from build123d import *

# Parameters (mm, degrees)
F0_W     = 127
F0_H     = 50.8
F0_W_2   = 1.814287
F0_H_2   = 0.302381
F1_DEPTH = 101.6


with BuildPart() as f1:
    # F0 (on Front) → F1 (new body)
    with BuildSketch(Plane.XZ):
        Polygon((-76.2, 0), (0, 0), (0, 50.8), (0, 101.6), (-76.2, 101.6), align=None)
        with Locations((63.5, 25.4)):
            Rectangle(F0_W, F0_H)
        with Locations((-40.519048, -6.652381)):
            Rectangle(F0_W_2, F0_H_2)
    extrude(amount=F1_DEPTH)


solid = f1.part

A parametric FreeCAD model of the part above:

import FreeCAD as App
import Part
import Sketcher
Q = App.Units.Quantity

doc = App.newDocument("Part")
body = doc.addObject("PartDesign::Body", "Body")
body.AllowCompound = True

sketch1 = body.newObject("Sketcher::SketchObject", "Sketch")
sketch1.AttachmentSupport = (doc.getObject("XZ_Plane"), [""])
sketch1.MapMode = "FlatFace"
sketch1.addGeometry([
    Part.LineSegment(App.Vector(-76.2, 0, 0), App.Vector(127, 0, 0)),
    Part.LineSegment(App.Vector(127, 0, 0), App.Vector(127, 50.8, 0)),
    Part.LineSegment(App.Vector(127, 50.8, 0), App.Vector(0, 50.8, 0)),
    Part.LineSegment(App.Vector(0, 50.8, 0), App.Vector(0, 101.6, 0)),
    Part.LineSegment(App.Vector(0, 101.6, 0), App.Vector(-76.2, 101.6, 0)),
    Part.LineSegment(App.Vector(-76.2, 101.6, 0), App.Vector(-76.2, 0, 0)),
    Part.LineSegment(App.Vector(-41.43, -6.5, 0), App.Vector(-41.43, -6.8, 0)),
    Part.LineSegment(App.Vector(-41.43, -6.8, 0), App.Vector(-39.61, -6.8, 0)),
    Part.LineSegment(App.Vector(-39.61, -6.8, 0), App.Vector(-39.61, -6.5, 0)),
    Part.LineSegment(App.Vector(-39.61, -6.5, 0), App.Vector(-41.43, -6.5, 0)),
], False)
sketch1.addConstraint([
    Sketcher.Constraint("Coincident", 0, 2, 1, 1),
    Sketcher.Constraint("Coincident", 1, 2, 2, 1),
    Sketcher.Constraint("Coincident", 2, 2, 3, 1),
    Sketcher.Constraint("Coincident", 3, 2, 4, 1),
    Sketcher.Constraint("Coincident", 4, 2, 5, 1),
    Sketcher.Constraint("Coincident", 5, 2, 0, 1),
    Sketcher.Constraint("Coincident", 6, 2, 7, 1),
    Sketcher.Constraint("Coincident", 7, 2, 8, 1),
    Sketcher.Constraint("Coincident", 8, 2, 9, 1),
    Sketcher.Constraint("Coincident", 9, 2, 6, 1),
    Sketcher.Constraint("Horizontal", 0),
    Sketcher.Constraint("Vertical", 1),
    Sketcher.Constraint("Horizontal", 2),
    Sketcher.Constraint("Vertical", 3),
    Sketcher.Constraint("Horizontal", 4),
    Sketcher.Constraint("Vertical", 5),
    Sketcher.Constraint("Vertical", 6),
    Sketcher.Constraint("Horizontal", 7),
    Sketcher.Constraint("Vertical", 8),
    Sketcher.Constraint("Horizontal", 9),
    Sketcher.Constraint("PointOnObject", 0, 2, -1),
    Sketcher.Constraint("PointOnObject", 2, 2, -2),
    Sketcher.Constraint("Equal", 1, 3),
    Sketcher.Constraint("DistanceX", 0, 1, 0, 2, Q("8 in")),
    Sketcher.Constraint("DistanceX", 2, 2, 2, 1, Q("5 in")),
    Sketcher.Constraint("DistanceY", 1, 1, 1, 2, Q("2 in")),
    Sketcher.Constraint("DistanceY", 6, 2, 6, 1, 0.302381),
    Sketcher.Constraint("DistanceX", 7, 1, 7, 2, 1.814287),
    Sketcher.Constraint("DistanceX", 6, 2, -1, 1, 41.426192),
    Sketcher.Constraint("DistanceY", 6, 2, -1, 1, 6.803572),
])
pad1 = body.newObject("PartDesign::Pad", "Pad")
pad1.Profile = sketch1
pad1.Length = Q("4 in")

doc.recompute()
